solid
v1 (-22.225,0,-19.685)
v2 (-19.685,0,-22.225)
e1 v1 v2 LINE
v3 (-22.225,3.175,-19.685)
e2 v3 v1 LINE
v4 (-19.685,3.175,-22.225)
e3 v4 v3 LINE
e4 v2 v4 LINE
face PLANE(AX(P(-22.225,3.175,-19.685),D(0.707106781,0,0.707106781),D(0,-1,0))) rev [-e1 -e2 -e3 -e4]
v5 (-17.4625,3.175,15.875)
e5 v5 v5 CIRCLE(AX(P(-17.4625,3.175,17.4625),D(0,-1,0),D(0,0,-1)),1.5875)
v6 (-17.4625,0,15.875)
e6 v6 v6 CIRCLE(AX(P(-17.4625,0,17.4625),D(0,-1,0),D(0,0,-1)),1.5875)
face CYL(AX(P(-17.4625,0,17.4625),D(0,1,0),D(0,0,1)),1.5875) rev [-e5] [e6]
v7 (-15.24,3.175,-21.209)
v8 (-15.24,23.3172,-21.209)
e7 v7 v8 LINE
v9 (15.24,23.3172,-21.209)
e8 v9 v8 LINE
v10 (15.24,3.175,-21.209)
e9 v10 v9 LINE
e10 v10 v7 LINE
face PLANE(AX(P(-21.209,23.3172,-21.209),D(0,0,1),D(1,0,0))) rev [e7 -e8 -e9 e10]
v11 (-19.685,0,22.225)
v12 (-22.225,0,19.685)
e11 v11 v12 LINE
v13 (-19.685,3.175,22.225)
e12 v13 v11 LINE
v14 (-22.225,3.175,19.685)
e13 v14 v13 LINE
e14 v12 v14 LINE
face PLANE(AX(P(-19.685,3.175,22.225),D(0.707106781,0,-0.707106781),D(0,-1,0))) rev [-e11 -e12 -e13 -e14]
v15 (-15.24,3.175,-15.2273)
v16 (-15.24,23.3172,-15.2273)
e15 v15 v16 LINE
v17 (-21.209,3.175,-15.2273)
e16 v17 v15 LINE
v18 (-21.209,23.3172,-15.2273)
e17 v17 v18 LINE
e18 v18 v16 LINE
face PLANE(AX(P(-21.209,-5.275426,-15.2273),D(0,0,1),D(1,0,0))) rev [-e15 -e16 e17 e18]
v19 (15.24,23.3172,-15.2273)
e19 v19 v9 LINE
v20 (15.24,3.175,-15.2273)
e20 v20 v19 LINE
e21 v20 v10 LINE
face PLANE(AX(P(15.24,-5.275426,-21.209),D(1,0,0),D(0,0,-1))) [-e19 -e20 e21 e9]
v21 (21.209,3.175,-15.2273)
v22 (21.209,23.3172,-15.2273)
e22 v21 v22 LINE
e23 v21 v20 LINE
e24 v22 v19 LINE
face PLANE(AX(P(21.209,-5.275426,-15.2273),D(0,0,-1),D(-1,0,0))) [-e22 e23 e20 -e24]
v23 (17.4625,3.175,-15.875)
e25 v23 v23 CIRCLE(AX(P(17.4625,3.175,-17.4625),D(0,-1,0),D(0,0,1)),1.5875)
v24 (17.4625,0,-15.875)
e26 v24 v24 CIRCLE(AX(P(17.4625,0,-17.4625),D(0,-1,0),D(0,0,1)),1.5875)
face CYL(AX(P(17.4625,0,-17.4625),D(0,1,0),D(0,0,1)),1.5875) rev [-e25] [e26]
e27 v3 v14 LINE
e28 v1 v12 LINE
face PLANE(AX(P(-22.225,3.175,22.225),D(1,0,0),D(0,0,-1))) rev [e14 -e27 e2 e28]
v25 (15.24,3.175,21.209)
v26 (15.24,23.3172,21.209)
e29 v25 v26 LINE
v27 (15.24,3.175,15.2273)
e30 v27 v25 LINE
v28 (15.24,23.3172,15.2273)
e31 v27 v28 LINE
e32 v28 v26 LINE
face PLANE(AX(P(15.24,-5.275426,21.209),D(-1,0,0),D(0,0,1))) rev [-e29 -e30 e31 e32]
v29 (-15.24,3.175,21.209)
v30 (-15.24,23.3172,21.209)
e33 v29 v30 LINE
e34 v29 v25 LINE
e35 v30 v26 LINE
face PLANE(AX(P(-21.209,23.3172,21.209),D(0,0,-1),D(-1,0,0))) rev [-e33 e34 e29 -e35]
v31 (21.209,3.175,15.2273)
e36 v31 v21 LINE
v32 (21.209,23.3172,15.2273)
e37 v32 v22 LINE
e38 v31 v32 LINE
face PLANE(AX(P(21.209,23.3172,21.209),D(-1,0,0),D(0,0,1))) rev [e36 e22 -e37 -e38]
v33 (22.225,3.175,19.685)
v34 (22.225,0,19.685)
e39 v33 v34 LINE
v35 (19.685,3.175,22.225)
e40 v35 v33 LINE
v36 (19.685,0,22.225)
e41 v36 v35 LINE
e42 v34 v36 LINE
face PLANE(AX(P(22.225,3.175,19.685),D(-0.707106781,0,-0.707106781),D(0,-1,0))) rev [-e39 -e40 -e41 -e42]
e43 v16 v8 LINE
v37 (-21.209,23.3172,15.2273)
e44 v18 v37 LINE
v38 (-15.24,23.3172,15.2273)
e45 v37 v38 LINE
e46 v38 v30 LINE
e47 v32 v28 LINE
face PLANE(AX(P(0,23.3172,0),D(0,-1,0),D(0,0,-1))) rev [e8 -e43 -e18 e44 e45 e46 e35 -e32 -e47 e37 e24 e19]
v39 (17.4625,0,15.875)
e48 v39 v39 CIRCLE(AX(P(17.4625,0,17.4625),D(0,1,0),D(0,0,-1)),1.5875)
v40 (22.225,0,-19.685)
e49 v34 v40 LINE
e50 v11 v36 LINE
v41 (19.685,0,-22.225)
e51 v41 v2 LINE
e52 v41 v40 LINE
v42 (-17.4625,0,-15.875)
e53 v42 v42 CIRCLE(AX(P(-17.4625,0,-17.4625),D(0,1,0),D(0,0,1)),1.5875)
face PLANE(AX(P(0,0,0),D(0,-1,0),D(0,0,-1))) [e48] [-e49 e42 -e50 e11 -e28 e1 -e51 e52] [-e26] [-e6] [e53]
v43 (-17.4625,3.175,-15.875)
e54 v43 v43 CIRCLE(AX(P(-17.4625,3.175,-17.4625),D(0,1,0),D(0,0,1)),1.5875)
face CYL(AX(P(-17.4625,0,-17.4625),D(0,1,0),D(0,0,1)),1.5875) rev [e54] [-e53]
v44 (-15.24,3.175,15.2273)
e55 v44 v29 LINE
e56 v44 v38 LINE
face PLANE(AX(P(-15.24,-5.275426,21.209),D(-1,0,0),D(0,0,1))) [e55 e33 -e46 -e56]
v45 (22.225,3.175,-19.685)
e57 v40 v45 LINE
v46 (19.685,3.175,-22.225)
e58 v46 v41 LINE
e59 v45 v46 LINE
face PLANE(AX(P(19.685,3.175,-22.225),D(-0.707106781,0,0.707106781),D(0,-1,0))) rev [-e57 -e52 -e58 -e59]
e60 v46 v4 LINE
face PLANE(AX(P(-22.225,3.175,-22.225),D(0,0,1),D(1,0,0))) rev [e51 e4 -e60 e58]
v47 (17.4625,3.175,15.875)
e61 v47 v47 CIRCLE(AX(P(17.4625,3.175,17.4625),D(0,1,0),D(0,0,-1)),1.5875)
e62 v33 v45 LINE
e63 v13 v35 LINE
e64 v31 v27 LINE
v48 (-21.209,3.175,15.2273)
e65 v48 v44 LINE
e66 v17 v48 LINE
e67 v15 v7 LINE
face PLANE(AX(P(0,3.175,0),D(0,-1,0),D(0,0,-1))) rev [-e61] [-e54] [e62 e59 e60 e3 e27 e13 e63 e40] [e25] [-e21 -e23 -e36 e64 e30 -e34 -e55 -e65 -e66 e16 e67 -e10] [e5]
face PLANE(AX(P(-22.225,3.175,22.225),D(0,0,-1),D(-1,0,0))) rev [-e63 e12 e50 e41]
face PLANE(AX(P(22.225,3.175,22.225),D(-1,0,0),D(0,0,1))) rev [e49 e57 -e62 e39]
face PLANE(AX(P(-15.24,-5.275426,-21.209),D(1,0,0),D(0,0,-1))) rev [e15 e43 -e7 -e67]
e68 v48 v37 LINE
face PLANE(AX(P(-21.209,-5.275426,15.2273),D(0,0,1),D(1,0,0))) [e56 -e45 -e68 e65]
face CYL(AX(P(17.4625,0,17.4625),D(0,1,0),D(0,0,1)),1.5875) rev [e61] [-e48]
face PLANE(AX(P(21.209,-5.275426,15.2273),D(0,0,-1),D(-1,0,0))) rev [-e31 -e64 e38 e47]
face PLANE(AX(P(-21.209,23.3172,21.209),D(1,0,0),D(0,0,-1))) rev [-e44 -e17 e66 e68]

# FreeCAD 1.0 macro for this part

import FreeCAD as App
import Part
import Sketcher

V = App.Vector
Q = App.Units.Quantity


def edges_at(feature, points):
    """Names of the edges that pass closest to the given points."""
    edges = feature.Shape.Edges
    near = lambda p: min(range(len(edges)), key=lambda i: edges[i].distToShape(Part.Vertex(*p))[0])
    return sorted({f"Edge{near(p) + 1}" for p in points})


def add_polygon(sketch, points):
    """Adds a closed chain of lines whose ends are joined by coincident constraints."""
    first, n = sketch.GeometryCount, len(points)
    for a, b in zip(points, points[1:] + points[:1]):
        sketch.addGeometry(Part.LineSegment(App.Vector(*a, 0), App.Vector(*b, 0)), False)
    for i in range(n):
        sketch.addConstraint(Sketcher.Constraint("Coincident", first + i, 2, first + (i + 1) % n, 1))

doc = App.newDocument("Part")
params = doc.addObject("Spreadsheet::Sheet", "Params")
for row, (alias, value) in enumerate([
    ("sketch1_width", "1.75 in"),
    ("pad1_length", "0.125 in"),
    ("chamfer_size", "0.1 in"),
    ("sketch2_diameter", "0.125 in"),
    ("sketch3_diameter", "0.125 in"),
    ("sketch4_width", "1.67 in"),
    ("pad2_length", "0.793 in"),
    ("sketch5_width", "0.235 in"),
    ("pocket3_length", "0.793 in"),
    ("sketch6_width", "0.235 in"),
    ("pocket4_length", "0.793 in"),
], start=1):
    params.set(f"A{row}", alias)
    params.set(f"B{row}", "=" + value)
    params.setAlias(f"B{row}", alias)

body = doc.addObject("PartDesign::Body", "Body")

# Sketch on XZ plane
sketch1 = doc.addObject("Sketcher::SketchObject", "Sketch")
body.addObject(sketch1)
sketch1.AttachmentSupport = (doc.XZ_Plane, [""])
sketch1.MapMode = "FlatFace"
add_polygon(sketch1, [(-22, -22), (-22, 22), (22, 22), (22, -22)])  # lines 0-3
sketch1.addConstraint([
    Sketcher.Constraint("Vertical", 0),
    Sketcher.Constraint("Horizontal", 1),
    Sketcher.Constraint("Vertical", 2),
    Sketcher.Constraint("Horizontal", 3),
    Sketcher.Constraint("Symmetric", 0, 2, 2, 2, -1, 1),
    Sketcher.Constraint("Equal", 3, 0),
    Sketcher.Constraint("DistanceX", 1, 1, 1, 2, Q("1.75 in")),
])
sketch1.setExpression("Constraints[10]", "Params.sketch1_width")
pad1 = doc.addObject("PartDesign::Pad", "Pad")
body.addObject(pad1)
pad1.Profile = sketch1
pad1.setExpression("Length", "Params.pad1_length")
pad1.Reversed = True
doc.recompute()

chamfer = doc.addObject("PartDesign::Chamfer", "Chamfer")
body.addObject(chamfer)
chamfer.Base = (pad1, edges_at(pad1, [
    (22.225, 1.587, 22.225),
    (-22.225, 1.587, 22.225),
    (-22.225, 1.587, -22.225),
    (22.225, 1.587, -22.225),
]))
chamfer.setExpression("Size", "Params.chamfer_size")

# Sketch on XZ plane
sketch2 = doc.addObject("Sketcher::SketchObject", "Sketch001")
body.addObject(sketch2)
sketch2.AttachmentSupport = (doc.XZ_Plane, [""])
sketch2.MapMode = "FlatFace"
sketch2.AttachmentOffset = App.Placement(V(0, 0, -0.125 * 25.4), App.Rotation())
sketch2.addGeometry(Part.Circle(V(-17.5, -17.5, 0), V(0, 0, 1), 1.6), False)
sketch2.addConstraint([
    Sketcher.Constraint("Diameter", 0, Q("0.125 in")),
    Sketcher.Constraint("DistanceX", 0, 3, -1, 1, Q("0.6875 in")),
    Sketcher.Constraint("DistanceY", 0, 3, -1, 1, Q("0.6875 in")),
])
sketch2.setExpression("Constraints[0]", "Params.sketch2_diameter")
pocket1 = doc.addObject("PartDesign::Pocket", "Pocket")
body.addObject(pocket1)
pocket1.Profile = sketch2
pocket1.Type = "ThroughAll"
pocket1.Reversed = True
doc.recompute()

mirrored = doc.addObject("PartDesign::Mirrored", "Mirrored")
body.addObject(mirrored)
mirrored.Originals = [pocket1]
mirrored.MirrorPlane = (doc.YZ_Plane, [""])
body.Tip = mirrored
doc.recompute()

mirrored2 = doc.addObject("PartDesign::Mirrored", "Mirrored001")
body.addObject(mirrored2)
mirrored2.Originals = [pocket1]
mirrored2.MirrorPlane = (doc.XY_Plane, [""])
body.Tip = mirrored2

# Sketch on XZ plane
sketch3 = doc.addObject("Sketcher::SketchObject", "Sketch002")
body.addObject(sketch3)
sketch3.AttachmentSupport = (doc.XZ_Plane, [""])
sketch3.MapMode = "FlatFace"
sketch3.AttachmentOffset = App.Placement(V(0, 0, -0.125 * 25.4), App.Rotation())
sketch3.addGeometry(Part.Circle(V(17.5, 17.5, 0), V(0, 0, 1), 1.6), False)
sketch3.addConstraint([
    Sketcher.Constraint("Diameter", 0, Q("0.125 in")),
    Sketcher.Constraint("DistanceX", -1, 1, 0, 3, Q("0.6875 in")),
    Sketcher.Constraint("DistanceY", -1, 1, 0, 3, Q("0.6875 in")),
])
sketch3.setExpression("Constraints[0]", "Params.sketch3_diameter")
pocket2 = doc.addObject("PartDesign::Pocket", "Pocket001")
body.addObject(pocket2)
pocket2.Profile = sketch3
pocket2.Type = "ThroughAll"
pocket2.Reversed = True

# Sketch on XZ plane
sketch4 = doc.addObject("Sketcher::SketchObject", "Sketch003")
body.addObject(sketch4)
sketch4.AttachmentSupport = (doc.XZ_Plane, [""])
sketch4.MapMode = "FlatFace"
sketch4.AttachmentOffset = App.Placement(V(0, 0, -0.125 * 25.4), App.Rotation())
add_polygon(sketch4, [(-21, -21), (-21, 21), (21, 21), (21, -21)])  # lines 0-3
sketch4.addConstraint([
    Sketcher.Constraint("Vertical", 0),
    Sketcher.Constraint("Horizontal", 1),
    Sketcher.Constraint("Vertical", 2),
    Sketcher.Constraint("Horizontal", 3),
    Sketcher.Constraint("Symmetric", 0, 2, 2, 2, -1, 1),
    Sketcher.Constraint("Equal", 3, 0),
    Sketcher.Constraint("DistanceX", 1, 1, 1, 2, Q("1.67 in")),
])
sketch4.setExpression("Constraints[10]", "Params.sketch4_width")
pad2 = doc.addObject("PartDesign::Pad", "Pad001")
body.addObject(pad2)
pad2.Profile = sketch4
pad2.setExpression("Length", "Params.pad2_length")
pad2.Reversed = True

# Sketch on XZ plane
sketch5 = doc.addObject("Sketcher::SketchObject", "Sketch004")
body.addObject(sketch5)
sketch5.AttachmentSupport = (doc.XZ_Plane, [""])
sketch5.MapMode = "FlatFace"
sketch5.AttachmentOffset = App.Placement(V(0, 0, -0.918 * 25.4), App.Rotation())
add_polygon(sketch5, [(-21, -21), (-21, -15), (-15, -15), (-15, -21)])  # lines 0-3
sketch5.addConstraint([
    Sketcher.Constraint("Vertical", 0),
    Sketcher.Constraint("Horizontal", 1),
    Sketcher.Constraint("Vertical", 2),
    Sketcher.Constraint("Horizontal", 3),
    Sketcher.Constraint("DistanceX", 1, 2, -1, 1, Q("0.6 in")),
    Sketcher.Constraint("DistanceX", 1, 1, 1, 2, Q("0.235 in")),
    Sketcher.Constraint("DistanceY", 0, 1, 0, 2, Q("0.2355 in")),
    Sketcher.Constraint("DistanceY", 2, 2, -1, 1, Q("0.835 in")),
])
sketch5.setExpression("Constraints[9]", "Params.sketch5_width")
pocket3 = doc.addObject("PartDesign::Pocket", "Pocket002")
body.addObject(pocket3)
pocket3.Profile = sketch5
pocket3.setExpression("Length", "Params.pocket3_length")
pocket3.Reversed = True
doc.recompute()

mirrored3 = doc.addObject("PartDesign::Mirrored", "Mirrored002")
body.addObject(mirrored3)
mirrored3.Originals = [pocket3]
mirrored3.MirrorPlane = (doc.YZ_Plane, [""])
body.Tip = mirrored3
doc.recompute()

mirrored4 = doc.addObject("PartDesign::Mirrored", "Mirrored003")
body.addObject(mirrored4)
mirrored4.Originals = [pocket3]
mirrored4.MirrorPlane = (doc.XY_Plane, [""])
body.Tip = mirrored4

# Sketch on XZ plane
sketch6 = doc.addObject("Sketcher::SketchObject", "Sketch005")
body.addObject(sketch6)
sketch6.AttachmentSupport = (doc.XZ_Plane, [""])
sketch6.MapMode = "FlatFace"
sketch6.AttachmentOffset = App.Placement(V(0, 0, -0.918 * 25.4), App.Rotation())
add_polygon(sketch6, [(21, 21), (21, 15), (15, 15), (15, 21)])  # lines 0-3
sketch6.addConstraint([
    Sketcher.Constraint("Vertical", 0),
    Sketcher.Constraint("Horizontal", 1),
    Sketcher.Constraint("Vertical", 2),
    Sketcher.Constraint("Horizontal", 3),
    Sketcher.Constraint("DistanceX", -1, 1, 1, 2, Q("0.6 in")),
    Sketcher.Constraint("DistanceX", 1, 2, 1, 1, Q("0.235 in")),
    Sketcher.Constraint("DistanceY", 0, 2, 0, 1, Q("0.2355 in")),
    Sketcher.Constraint("DistanceY", -1, 1, 2, 2, Q("0.835 in")),
])
sketch6.setExpression("Constraints[9]", "Params.sketch6_width")
pocket4 = doc.addObject("PartDesign::Pocket", "Pocket003")
body.addObject(pocket4)
pocket4.Profile = sketch6
pocket4.setExpression("Length", "Params.pocket4_length")
pocket4.Reversed = True

doc.recompute()
